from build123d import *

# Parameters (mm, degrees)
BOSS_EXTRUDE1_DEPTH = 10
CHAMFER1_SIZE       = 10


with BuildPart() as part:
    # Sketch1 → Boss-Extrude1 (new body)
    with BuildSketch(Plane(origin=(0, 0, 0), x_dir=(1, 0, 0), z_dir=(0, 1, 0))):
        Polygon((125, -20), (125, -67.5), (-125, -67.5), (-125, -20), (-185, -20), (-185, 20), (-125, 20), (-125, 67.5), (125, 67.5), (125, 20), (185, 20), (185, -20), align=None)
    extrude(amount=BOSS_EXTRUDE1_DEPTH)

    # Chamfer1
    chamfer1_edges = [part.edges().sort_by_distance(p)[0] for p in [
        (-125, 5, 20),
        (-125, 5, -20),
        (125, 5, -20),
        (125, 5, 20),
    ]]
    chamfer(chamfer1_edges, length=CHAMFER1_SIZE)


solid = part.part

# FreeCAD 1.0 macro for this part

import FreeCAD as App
import Part
import Sketcher

V = App.Vector
Q = App.Units.Quantity


def edges_at(feature, points):
    """Names of the edges that pass closest to the given points."""
    edges = feature.Shape.Edges
    near = lambda p: min(range(len(edges)), key=lambda i: edges[i].distToShape(Part.Vertex(*p))[0])
    return sorted({f"Edge{near(p) + 1}" for p in points})

doc = App.newDocument("Part")
body = doc.addObject("PartDesign::Body", "Body")

# Sketch on XZ plane
sketch1 = body.newObject("Sketcher::SketchObject", "Sketch")
sketch1.AttachmentSupport = (doc.getObject("XZ_Plane"), [""])
sketch1.MapMode = "FlatFace"
sketch1.addGeometry(Part.LineSegment(V(125, 68, 0), V(125, 20, 0)), False)
sketch1.addGeometry(Part.LineSegment(V(125, 20, 0), V(185, 20, 0)), False)
sketch1.addGeometry(Part.LineSegment(V(185, 20, 0), V(185, -20, 0)), False)
sketch1.addGeometry(Part.LineSegment(V(185, -20, 0), V(125, -20, 0)), False)
sketch1.addGeometry(Part.LineSegment(V(125, -20, 0), V(125, -68, 0)), False)
sketch1.addGeometry(Part.LineSegment(V(125, -68, 0), V(-125, -68, 0)), False)
sketch1.addGeometry(Part.LineSegment(V(-125, -68, 0), V(-125, -20, 0)), False)
sketch1.addGeometry(Part.LineSegment(V(-125, -20, 0), V(-185, -20, 0)), False)
sketch1.addGeometry(Part.LineSegment(V(-185, -20, 0), V(-185, 20, 0)), False)
sketch1.addGeometry(Part.LineSegment(V(-185, 20, 0), V(-125, 20, 0)), False)
sketch1.addGeometry(Part.LineSegment(V(-125, 20, 0), V(-125, 68, 0)), False)
sketch1.addGeometry(Part.LineSegment(V(-125, 68, 0), V(125, 68, 0)), False)
sketch1.addConstraint(Sketcher.Constraint("Coincident", 0, 2, 1, 1))
sketch1.addConstraint(Sketcher.Constraint("Coincident", 1, 2, 2, 1))
sketch1.addConstraint(Sketcher.Constraint("Coincident", 2, 2, 3, 1))
sketch1.addConstraint(Sketcher.Constraint("Coincident", 3, 2, 4, 1))
sketch1.addConstraint(Sketcher.Constraint("Coincident", 4, 2, 5, 1))
sketch1.addConstraint(Sketcher.Constraint("Coincident", 5, 2, 6, 1))
sketch1.addConstraint(Sketcher.Constraint("Coincident", 6, 2, 7, 1))
sketch1.addConstraint(Sketcher.Constraint("Coincident", 7, 2, 8, 1))
sketch1.addConstraint(Sketcher.Constraint("Coincident", 8, 2, 9, 1))
sketch1.addConstraint(Sketcher.Constraint("Coincident", 9, 2, 10, 1))
sketch1.addConstraint(Sketcher.Constraint("Coincident", 10, 2, 11, 1))
sketch1.addConstraint(Sketcher.Constraint("Coincident", 11, 2, 0, 1))
sketch1.addConstraint(Sketcher.Constraint("Vertical", 0))
sketch1.addConstraint(Sketcher.Constraint("Horizontal", 1))
sketch1.addConstraint(Sketcher.Constraint("Vertical", 2))
sketch1.addConstraint(Sketcher.Constraint("Horizontal", 3))
sketch1.addConstraint(Sketcher.Constraint("Vertical", 4))
sketch1.addConstraint(Sketcher.Constraint("Horizontal", 5))
sketch1.addConstraint(Sketcher.Constraint("Vertical", 6))
sketch1.addConstraint(Sketcher.Constraint("Horizontal", 7))
sketch1.addConstraint(Sketcher.Constraint("Vertical", 8))
sketch1.addConstraint(Sketcher.Constraint("Horizontal", 9))
sketch1.addConstraint(Sketcher.Constraint("Vertical", 10))
sketch1.addConstraint(Sketcher.Constraint("Horizontal", 11))
sketch1.addConstraint(Sketcher.Constraint("Symmetric", 0, 2, 6, 2, -1, 1))
sketch1.addConstraint(Sketcher.Constraint("Symmetric", 2, 2, 8, 2, -1, 1))
sketch1.addConstraint(Sketcher.Constraint("Symmetric", 4, 2, 10, 2, -1, 1))
sketch1.addConstraint(Sketcher.Constraint("Symmetric", 3, 2, 6, 2, -2))
sketch1.addConstraint(Sketcher.Constraint("DistanceX", 1, 1, 1, 2, Q("60 mm")))
sketch1.addConstraint(Sketcher.Constraint("DistanceX", 5, 2, 5, 1, Q("250 mm")))
sketch1.addConstraint(Sketcher.Constraint("DistanceY", 2, 2, 2, 1, Q("40 mm")))
sketch1.addConstraint(Sketcher.Constraint("DistanceY", 0, 2, 0, 1, Q("47.5 mm")))
pad1 = body.newObject("PartDesign::Pad", "Pad")
pad1.Profile = sketch1
pad1.Length = 10
pad1.Reversed = True
doc.recompute()

chamfer = body.newObject("PartDesign::Chamfer", "Chamfer")
chamfer.Base = (pad1, edges_at(pad1, [
    (-125, 5, 20),
    (-125, 5, -20),
    (125, 5, -20),
    (125, 5, 20),
]))
chamfer.Size = 10

doc.recompute()
